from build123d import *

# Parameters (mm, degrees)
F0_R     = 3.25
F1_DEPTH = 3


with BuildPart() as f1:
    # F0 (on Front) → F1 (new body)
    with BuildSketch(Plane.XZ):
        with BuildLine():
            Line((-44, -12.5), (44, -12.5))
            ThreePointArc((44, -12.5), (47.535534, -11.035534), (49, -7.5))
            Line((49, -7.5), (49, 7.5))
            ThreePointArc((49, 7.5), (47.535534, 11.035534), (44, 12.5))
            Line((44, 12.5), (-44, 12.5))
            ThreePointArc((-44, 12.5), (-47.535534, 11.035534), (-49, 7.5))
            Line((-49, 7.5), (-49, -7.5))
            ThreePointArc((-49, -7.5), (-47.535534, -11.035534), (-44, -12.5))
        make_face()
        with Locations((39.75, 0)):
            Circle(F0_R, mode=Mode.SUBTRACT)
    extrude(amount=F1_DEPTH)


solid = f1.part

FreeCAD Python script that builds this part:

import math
import FreeCAD as App
import Part
import Sketcher

V = App.Vector

doc = App.newDocument("Part")
params = doc.addObject("Spreadsheet::Sheet", "Params")
for row, (alias, value) in enumerate([
    ("sketch1_radius", "5 mm"),
    ("sketch1_diameter", "6.5 mm"),
    ("sketch1_width", "88 mm"),
    ("sketch1_height", "15 mm"),
    ("pad1_length", "3 mm"),
], start=1):
    params.set(f"A{row}", alias)
    params.set(f"B{row}", "=" + value)
    params.setAlias(f"B{row}", alias)

body = doc.addObject("PartDesign::Body", "Body")

# Sketch on XZ plane
sketch1 = doc.addObject("Sketcher::SketchObject", "Sketch")
body.addObject(sketch1)
sketch1.AttachmentSupport = (doc.XZ_Plane, [""])
sketch1.MapMode = "FlatFace"
sketch1.addGeometry([
    Part.LineSegment(V(-44, -12.5, 0), V(44, -12.5, 0)),  # 0
    Part.ArcOfCircle(Part.Circle(V(44, -7.5, 0), V(0, 0, 1), 5), math.radians(-90), math.radians(0)),  # 1
    Part.LineSegment(V(49, -7.5, 0), V(49, 7.5, 0)),  # 2
    Part.ArcOfCircle(Part.Circle(V(44, 7.5, 0), V(0, 0, 1), 5), math.radians(0), math.radians(90)),  # 3
    Part.LineSegment(V(44, 12.5, 0), V(-44, 12.5, 0)),  # 4
    Part.ArcOfCircle(Part.Circle(V(-44, 7.5, 0), V(0, 0, 1), 5), math.radians(90), math.radians(180)),  # 5
    Part.LineSegment(V(-49, 7.5, 0), V(-49, -7.5, 0)),  # 6
    Part.ArcOfCircle(Part.Circle(V(-44, -7.5, 0), V(0, 0, 1), 5), math.radians(180), math.radians(270)),  # 7
    Part.Circle(V(39.8, 0, 0), V(0, 0, 1), 3.2),  # 8
], False)
sketch1.addConstraint([
    Sketcher.Constraint("Tangent", 0, 2, 1, 1),
    Sketcher.Constraint("Tangent", 1, 2, 2, 1),
    Sketcher.Constraint("Tangent", 2, 2, 3, 1),
    Sketcher.Constraint("Tangent", 3, 2, 4, 1),
    Sketcher.Constraint("Tangent", 4, 2, 5, 1),
    Sketcher.Constraint("Tangent", 5, 2, 6, 1),
    Sketcher.Constraint("Tangent", 6, 2, 7, 1),
    Sketcher.Constraint("Tangent", 7, 2, 0, 1),
    Sketcher.Constraint("Horizontal", 0),
    Sketcher.Constraint("Vertical", 2),
    Sketcher.Constraint("Horizontal", 4),
    Sketcher.Constraint("Vertical", 6),
    Sketcher.Constraint("Equal", 1, 3),
    Sketcher.Constraint("Equal", 3, 5),
    Sketcher.Constraint("Equal", 5, 7),
    Sketcher.Constraint("Symmetric", 1, 3, 5, 3, -1, 1),
    Sketcher.Constraint("PointOnObject", 8, 3, -1),
    Sketcher.Constraint("Radius", 1, 5.0),
    Sketcher.Constraint("Diameter", 8, 6.5),
    Sketcher.Constraint("DistanceX", 0, 1, 0, 2, 88.0),
    Sketcher.Constraint("DistanceY", 2, 1, 2, 2, 15.0),
    Sketcher.Constraint("DistanceX", -1, 1, 8, 3, 39.75),
])
sketch1.setExpression("Constraints[17]", "Params.sketch1_radius")
sketch1.setExpression("Constraints[18]", "Params.sketch1_diameter")
sketch1.setExpression("Constraints[19]", "Params.sketch1_width")
sketch1.setExpression("Constraints[20]", "Params.sketch1_height")
pad1 = doc.addObject("PartDesign::Pad", "Pad")
body.addObject(pad1)
pad1.Profile = sketch1
pad1.setExpression("Length", "Params.pad1_length")

doc.recompute()
